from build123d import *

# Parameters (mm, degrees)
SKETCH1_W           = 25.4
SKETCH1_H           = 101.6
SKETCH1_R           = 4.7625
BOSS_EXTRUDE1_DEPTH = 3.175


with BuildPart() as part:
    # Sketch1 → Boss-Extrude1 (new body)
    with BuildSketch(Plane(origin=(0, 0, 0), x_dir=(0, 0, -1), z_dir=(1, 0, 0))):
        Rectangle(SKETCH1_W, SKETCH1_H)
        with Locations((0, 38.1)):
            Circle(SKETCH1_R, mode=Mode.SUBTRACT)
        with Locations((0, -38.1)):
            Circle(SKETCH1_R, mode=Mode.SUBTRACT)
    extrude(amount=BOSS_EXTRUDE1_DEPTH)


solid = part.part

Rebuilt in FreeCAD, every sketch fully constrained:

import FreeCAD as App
import Part
import Sketcher

V = App.Vector
Q = App.Units.Quantity


def add_polygon(sketch, points):
    """Adds a closed chain of lines whose ends are joined by coincident constraints."""
    first, n = sketch.GeometryCount, len(points)
    for a, b in zip(points, points[1:] + points[:1]):
        sketch.addGeometry(Part.LineSegment(App.Vector(*a, 0), App.Vector(*b, 0)), False)
    for i in range(n):
        sketch.addConstraint(Sketcher.Constraint("Coincident", first + i, 2, first + (i + 1) % n, 1))

doc = App.newDocument("Part")
body = doc.addObject("PartDesign::Body", "Body")

# Sketch on YZ plane
sketch1 = body.newObject("Sketcher::SketchObject", "Sketch")
sketch1.AttachmentSupport = (doc.getObject("YZ_Plane"), [""])
sketch1.MapMode = "FlatFace"
add_polygon(sketch1, [(50.8, 12.7), (-50.8, 12.7), (-50.8, -12.7), (50.8, -12.7)])  # lines 0-3
sketch1.addGeometry(Part.Circle(V(-38.1, 0, 0), V(0, 0, 1), 4.8), False)  # 4
sketch1.addGeometry(Part.Circle(V(38.1, 0, 0), V(0, 0, 1), 4.8), False)  # 5
sketch1.addConstraint(Sketcher.Constraint("Horizontal", 0))
sketch1.addConstraint(Sketcher.Constraint("Vertical", 1))
sketch1.addConstraint(Sketcher.Constraint("Horizontal", 2))
sketch1.addConstraint(Sketcher.Constraint("Vertical", 3))
sketch1.addConstraint(Sketcher.Constraint("Equal", 4, 5))
sketch1.addConstraint(Sketcher.Constraint("Symmetric", 4, 3, 5, 3, -1, 1))
sketch1.addConstraint(Sketcher.Constraint("Symmetric", 0, 2, 2, 2, -1, 1))
sketch1.addConstraint(Sketcher.Constraint("PointOnObject", 4, 3, -1))
sketch1.addConstraint(Sketcher.Constraint("DistanceX", 0, 2, 0, 1, Q("4 in")))
sketch1.addConstraint(Sketcher.Constraint("DistanceY", 1, 2, 1, 1, Q("1 in")))
sketch1.addConstraint(Sketcher.Constraint("Diameter", 4, Q("0.375 in")))
sketch1.addConstraint(Sketcher.Constraint("DistanceX", 4, 3, 5, 3, Q("3 in")))
pad1 = body.newObject("PartDesign::Pad", "Pad")
pad1.Profile = sketch1
pad1.Length = Q("0.125 in")

doc.recompute()
